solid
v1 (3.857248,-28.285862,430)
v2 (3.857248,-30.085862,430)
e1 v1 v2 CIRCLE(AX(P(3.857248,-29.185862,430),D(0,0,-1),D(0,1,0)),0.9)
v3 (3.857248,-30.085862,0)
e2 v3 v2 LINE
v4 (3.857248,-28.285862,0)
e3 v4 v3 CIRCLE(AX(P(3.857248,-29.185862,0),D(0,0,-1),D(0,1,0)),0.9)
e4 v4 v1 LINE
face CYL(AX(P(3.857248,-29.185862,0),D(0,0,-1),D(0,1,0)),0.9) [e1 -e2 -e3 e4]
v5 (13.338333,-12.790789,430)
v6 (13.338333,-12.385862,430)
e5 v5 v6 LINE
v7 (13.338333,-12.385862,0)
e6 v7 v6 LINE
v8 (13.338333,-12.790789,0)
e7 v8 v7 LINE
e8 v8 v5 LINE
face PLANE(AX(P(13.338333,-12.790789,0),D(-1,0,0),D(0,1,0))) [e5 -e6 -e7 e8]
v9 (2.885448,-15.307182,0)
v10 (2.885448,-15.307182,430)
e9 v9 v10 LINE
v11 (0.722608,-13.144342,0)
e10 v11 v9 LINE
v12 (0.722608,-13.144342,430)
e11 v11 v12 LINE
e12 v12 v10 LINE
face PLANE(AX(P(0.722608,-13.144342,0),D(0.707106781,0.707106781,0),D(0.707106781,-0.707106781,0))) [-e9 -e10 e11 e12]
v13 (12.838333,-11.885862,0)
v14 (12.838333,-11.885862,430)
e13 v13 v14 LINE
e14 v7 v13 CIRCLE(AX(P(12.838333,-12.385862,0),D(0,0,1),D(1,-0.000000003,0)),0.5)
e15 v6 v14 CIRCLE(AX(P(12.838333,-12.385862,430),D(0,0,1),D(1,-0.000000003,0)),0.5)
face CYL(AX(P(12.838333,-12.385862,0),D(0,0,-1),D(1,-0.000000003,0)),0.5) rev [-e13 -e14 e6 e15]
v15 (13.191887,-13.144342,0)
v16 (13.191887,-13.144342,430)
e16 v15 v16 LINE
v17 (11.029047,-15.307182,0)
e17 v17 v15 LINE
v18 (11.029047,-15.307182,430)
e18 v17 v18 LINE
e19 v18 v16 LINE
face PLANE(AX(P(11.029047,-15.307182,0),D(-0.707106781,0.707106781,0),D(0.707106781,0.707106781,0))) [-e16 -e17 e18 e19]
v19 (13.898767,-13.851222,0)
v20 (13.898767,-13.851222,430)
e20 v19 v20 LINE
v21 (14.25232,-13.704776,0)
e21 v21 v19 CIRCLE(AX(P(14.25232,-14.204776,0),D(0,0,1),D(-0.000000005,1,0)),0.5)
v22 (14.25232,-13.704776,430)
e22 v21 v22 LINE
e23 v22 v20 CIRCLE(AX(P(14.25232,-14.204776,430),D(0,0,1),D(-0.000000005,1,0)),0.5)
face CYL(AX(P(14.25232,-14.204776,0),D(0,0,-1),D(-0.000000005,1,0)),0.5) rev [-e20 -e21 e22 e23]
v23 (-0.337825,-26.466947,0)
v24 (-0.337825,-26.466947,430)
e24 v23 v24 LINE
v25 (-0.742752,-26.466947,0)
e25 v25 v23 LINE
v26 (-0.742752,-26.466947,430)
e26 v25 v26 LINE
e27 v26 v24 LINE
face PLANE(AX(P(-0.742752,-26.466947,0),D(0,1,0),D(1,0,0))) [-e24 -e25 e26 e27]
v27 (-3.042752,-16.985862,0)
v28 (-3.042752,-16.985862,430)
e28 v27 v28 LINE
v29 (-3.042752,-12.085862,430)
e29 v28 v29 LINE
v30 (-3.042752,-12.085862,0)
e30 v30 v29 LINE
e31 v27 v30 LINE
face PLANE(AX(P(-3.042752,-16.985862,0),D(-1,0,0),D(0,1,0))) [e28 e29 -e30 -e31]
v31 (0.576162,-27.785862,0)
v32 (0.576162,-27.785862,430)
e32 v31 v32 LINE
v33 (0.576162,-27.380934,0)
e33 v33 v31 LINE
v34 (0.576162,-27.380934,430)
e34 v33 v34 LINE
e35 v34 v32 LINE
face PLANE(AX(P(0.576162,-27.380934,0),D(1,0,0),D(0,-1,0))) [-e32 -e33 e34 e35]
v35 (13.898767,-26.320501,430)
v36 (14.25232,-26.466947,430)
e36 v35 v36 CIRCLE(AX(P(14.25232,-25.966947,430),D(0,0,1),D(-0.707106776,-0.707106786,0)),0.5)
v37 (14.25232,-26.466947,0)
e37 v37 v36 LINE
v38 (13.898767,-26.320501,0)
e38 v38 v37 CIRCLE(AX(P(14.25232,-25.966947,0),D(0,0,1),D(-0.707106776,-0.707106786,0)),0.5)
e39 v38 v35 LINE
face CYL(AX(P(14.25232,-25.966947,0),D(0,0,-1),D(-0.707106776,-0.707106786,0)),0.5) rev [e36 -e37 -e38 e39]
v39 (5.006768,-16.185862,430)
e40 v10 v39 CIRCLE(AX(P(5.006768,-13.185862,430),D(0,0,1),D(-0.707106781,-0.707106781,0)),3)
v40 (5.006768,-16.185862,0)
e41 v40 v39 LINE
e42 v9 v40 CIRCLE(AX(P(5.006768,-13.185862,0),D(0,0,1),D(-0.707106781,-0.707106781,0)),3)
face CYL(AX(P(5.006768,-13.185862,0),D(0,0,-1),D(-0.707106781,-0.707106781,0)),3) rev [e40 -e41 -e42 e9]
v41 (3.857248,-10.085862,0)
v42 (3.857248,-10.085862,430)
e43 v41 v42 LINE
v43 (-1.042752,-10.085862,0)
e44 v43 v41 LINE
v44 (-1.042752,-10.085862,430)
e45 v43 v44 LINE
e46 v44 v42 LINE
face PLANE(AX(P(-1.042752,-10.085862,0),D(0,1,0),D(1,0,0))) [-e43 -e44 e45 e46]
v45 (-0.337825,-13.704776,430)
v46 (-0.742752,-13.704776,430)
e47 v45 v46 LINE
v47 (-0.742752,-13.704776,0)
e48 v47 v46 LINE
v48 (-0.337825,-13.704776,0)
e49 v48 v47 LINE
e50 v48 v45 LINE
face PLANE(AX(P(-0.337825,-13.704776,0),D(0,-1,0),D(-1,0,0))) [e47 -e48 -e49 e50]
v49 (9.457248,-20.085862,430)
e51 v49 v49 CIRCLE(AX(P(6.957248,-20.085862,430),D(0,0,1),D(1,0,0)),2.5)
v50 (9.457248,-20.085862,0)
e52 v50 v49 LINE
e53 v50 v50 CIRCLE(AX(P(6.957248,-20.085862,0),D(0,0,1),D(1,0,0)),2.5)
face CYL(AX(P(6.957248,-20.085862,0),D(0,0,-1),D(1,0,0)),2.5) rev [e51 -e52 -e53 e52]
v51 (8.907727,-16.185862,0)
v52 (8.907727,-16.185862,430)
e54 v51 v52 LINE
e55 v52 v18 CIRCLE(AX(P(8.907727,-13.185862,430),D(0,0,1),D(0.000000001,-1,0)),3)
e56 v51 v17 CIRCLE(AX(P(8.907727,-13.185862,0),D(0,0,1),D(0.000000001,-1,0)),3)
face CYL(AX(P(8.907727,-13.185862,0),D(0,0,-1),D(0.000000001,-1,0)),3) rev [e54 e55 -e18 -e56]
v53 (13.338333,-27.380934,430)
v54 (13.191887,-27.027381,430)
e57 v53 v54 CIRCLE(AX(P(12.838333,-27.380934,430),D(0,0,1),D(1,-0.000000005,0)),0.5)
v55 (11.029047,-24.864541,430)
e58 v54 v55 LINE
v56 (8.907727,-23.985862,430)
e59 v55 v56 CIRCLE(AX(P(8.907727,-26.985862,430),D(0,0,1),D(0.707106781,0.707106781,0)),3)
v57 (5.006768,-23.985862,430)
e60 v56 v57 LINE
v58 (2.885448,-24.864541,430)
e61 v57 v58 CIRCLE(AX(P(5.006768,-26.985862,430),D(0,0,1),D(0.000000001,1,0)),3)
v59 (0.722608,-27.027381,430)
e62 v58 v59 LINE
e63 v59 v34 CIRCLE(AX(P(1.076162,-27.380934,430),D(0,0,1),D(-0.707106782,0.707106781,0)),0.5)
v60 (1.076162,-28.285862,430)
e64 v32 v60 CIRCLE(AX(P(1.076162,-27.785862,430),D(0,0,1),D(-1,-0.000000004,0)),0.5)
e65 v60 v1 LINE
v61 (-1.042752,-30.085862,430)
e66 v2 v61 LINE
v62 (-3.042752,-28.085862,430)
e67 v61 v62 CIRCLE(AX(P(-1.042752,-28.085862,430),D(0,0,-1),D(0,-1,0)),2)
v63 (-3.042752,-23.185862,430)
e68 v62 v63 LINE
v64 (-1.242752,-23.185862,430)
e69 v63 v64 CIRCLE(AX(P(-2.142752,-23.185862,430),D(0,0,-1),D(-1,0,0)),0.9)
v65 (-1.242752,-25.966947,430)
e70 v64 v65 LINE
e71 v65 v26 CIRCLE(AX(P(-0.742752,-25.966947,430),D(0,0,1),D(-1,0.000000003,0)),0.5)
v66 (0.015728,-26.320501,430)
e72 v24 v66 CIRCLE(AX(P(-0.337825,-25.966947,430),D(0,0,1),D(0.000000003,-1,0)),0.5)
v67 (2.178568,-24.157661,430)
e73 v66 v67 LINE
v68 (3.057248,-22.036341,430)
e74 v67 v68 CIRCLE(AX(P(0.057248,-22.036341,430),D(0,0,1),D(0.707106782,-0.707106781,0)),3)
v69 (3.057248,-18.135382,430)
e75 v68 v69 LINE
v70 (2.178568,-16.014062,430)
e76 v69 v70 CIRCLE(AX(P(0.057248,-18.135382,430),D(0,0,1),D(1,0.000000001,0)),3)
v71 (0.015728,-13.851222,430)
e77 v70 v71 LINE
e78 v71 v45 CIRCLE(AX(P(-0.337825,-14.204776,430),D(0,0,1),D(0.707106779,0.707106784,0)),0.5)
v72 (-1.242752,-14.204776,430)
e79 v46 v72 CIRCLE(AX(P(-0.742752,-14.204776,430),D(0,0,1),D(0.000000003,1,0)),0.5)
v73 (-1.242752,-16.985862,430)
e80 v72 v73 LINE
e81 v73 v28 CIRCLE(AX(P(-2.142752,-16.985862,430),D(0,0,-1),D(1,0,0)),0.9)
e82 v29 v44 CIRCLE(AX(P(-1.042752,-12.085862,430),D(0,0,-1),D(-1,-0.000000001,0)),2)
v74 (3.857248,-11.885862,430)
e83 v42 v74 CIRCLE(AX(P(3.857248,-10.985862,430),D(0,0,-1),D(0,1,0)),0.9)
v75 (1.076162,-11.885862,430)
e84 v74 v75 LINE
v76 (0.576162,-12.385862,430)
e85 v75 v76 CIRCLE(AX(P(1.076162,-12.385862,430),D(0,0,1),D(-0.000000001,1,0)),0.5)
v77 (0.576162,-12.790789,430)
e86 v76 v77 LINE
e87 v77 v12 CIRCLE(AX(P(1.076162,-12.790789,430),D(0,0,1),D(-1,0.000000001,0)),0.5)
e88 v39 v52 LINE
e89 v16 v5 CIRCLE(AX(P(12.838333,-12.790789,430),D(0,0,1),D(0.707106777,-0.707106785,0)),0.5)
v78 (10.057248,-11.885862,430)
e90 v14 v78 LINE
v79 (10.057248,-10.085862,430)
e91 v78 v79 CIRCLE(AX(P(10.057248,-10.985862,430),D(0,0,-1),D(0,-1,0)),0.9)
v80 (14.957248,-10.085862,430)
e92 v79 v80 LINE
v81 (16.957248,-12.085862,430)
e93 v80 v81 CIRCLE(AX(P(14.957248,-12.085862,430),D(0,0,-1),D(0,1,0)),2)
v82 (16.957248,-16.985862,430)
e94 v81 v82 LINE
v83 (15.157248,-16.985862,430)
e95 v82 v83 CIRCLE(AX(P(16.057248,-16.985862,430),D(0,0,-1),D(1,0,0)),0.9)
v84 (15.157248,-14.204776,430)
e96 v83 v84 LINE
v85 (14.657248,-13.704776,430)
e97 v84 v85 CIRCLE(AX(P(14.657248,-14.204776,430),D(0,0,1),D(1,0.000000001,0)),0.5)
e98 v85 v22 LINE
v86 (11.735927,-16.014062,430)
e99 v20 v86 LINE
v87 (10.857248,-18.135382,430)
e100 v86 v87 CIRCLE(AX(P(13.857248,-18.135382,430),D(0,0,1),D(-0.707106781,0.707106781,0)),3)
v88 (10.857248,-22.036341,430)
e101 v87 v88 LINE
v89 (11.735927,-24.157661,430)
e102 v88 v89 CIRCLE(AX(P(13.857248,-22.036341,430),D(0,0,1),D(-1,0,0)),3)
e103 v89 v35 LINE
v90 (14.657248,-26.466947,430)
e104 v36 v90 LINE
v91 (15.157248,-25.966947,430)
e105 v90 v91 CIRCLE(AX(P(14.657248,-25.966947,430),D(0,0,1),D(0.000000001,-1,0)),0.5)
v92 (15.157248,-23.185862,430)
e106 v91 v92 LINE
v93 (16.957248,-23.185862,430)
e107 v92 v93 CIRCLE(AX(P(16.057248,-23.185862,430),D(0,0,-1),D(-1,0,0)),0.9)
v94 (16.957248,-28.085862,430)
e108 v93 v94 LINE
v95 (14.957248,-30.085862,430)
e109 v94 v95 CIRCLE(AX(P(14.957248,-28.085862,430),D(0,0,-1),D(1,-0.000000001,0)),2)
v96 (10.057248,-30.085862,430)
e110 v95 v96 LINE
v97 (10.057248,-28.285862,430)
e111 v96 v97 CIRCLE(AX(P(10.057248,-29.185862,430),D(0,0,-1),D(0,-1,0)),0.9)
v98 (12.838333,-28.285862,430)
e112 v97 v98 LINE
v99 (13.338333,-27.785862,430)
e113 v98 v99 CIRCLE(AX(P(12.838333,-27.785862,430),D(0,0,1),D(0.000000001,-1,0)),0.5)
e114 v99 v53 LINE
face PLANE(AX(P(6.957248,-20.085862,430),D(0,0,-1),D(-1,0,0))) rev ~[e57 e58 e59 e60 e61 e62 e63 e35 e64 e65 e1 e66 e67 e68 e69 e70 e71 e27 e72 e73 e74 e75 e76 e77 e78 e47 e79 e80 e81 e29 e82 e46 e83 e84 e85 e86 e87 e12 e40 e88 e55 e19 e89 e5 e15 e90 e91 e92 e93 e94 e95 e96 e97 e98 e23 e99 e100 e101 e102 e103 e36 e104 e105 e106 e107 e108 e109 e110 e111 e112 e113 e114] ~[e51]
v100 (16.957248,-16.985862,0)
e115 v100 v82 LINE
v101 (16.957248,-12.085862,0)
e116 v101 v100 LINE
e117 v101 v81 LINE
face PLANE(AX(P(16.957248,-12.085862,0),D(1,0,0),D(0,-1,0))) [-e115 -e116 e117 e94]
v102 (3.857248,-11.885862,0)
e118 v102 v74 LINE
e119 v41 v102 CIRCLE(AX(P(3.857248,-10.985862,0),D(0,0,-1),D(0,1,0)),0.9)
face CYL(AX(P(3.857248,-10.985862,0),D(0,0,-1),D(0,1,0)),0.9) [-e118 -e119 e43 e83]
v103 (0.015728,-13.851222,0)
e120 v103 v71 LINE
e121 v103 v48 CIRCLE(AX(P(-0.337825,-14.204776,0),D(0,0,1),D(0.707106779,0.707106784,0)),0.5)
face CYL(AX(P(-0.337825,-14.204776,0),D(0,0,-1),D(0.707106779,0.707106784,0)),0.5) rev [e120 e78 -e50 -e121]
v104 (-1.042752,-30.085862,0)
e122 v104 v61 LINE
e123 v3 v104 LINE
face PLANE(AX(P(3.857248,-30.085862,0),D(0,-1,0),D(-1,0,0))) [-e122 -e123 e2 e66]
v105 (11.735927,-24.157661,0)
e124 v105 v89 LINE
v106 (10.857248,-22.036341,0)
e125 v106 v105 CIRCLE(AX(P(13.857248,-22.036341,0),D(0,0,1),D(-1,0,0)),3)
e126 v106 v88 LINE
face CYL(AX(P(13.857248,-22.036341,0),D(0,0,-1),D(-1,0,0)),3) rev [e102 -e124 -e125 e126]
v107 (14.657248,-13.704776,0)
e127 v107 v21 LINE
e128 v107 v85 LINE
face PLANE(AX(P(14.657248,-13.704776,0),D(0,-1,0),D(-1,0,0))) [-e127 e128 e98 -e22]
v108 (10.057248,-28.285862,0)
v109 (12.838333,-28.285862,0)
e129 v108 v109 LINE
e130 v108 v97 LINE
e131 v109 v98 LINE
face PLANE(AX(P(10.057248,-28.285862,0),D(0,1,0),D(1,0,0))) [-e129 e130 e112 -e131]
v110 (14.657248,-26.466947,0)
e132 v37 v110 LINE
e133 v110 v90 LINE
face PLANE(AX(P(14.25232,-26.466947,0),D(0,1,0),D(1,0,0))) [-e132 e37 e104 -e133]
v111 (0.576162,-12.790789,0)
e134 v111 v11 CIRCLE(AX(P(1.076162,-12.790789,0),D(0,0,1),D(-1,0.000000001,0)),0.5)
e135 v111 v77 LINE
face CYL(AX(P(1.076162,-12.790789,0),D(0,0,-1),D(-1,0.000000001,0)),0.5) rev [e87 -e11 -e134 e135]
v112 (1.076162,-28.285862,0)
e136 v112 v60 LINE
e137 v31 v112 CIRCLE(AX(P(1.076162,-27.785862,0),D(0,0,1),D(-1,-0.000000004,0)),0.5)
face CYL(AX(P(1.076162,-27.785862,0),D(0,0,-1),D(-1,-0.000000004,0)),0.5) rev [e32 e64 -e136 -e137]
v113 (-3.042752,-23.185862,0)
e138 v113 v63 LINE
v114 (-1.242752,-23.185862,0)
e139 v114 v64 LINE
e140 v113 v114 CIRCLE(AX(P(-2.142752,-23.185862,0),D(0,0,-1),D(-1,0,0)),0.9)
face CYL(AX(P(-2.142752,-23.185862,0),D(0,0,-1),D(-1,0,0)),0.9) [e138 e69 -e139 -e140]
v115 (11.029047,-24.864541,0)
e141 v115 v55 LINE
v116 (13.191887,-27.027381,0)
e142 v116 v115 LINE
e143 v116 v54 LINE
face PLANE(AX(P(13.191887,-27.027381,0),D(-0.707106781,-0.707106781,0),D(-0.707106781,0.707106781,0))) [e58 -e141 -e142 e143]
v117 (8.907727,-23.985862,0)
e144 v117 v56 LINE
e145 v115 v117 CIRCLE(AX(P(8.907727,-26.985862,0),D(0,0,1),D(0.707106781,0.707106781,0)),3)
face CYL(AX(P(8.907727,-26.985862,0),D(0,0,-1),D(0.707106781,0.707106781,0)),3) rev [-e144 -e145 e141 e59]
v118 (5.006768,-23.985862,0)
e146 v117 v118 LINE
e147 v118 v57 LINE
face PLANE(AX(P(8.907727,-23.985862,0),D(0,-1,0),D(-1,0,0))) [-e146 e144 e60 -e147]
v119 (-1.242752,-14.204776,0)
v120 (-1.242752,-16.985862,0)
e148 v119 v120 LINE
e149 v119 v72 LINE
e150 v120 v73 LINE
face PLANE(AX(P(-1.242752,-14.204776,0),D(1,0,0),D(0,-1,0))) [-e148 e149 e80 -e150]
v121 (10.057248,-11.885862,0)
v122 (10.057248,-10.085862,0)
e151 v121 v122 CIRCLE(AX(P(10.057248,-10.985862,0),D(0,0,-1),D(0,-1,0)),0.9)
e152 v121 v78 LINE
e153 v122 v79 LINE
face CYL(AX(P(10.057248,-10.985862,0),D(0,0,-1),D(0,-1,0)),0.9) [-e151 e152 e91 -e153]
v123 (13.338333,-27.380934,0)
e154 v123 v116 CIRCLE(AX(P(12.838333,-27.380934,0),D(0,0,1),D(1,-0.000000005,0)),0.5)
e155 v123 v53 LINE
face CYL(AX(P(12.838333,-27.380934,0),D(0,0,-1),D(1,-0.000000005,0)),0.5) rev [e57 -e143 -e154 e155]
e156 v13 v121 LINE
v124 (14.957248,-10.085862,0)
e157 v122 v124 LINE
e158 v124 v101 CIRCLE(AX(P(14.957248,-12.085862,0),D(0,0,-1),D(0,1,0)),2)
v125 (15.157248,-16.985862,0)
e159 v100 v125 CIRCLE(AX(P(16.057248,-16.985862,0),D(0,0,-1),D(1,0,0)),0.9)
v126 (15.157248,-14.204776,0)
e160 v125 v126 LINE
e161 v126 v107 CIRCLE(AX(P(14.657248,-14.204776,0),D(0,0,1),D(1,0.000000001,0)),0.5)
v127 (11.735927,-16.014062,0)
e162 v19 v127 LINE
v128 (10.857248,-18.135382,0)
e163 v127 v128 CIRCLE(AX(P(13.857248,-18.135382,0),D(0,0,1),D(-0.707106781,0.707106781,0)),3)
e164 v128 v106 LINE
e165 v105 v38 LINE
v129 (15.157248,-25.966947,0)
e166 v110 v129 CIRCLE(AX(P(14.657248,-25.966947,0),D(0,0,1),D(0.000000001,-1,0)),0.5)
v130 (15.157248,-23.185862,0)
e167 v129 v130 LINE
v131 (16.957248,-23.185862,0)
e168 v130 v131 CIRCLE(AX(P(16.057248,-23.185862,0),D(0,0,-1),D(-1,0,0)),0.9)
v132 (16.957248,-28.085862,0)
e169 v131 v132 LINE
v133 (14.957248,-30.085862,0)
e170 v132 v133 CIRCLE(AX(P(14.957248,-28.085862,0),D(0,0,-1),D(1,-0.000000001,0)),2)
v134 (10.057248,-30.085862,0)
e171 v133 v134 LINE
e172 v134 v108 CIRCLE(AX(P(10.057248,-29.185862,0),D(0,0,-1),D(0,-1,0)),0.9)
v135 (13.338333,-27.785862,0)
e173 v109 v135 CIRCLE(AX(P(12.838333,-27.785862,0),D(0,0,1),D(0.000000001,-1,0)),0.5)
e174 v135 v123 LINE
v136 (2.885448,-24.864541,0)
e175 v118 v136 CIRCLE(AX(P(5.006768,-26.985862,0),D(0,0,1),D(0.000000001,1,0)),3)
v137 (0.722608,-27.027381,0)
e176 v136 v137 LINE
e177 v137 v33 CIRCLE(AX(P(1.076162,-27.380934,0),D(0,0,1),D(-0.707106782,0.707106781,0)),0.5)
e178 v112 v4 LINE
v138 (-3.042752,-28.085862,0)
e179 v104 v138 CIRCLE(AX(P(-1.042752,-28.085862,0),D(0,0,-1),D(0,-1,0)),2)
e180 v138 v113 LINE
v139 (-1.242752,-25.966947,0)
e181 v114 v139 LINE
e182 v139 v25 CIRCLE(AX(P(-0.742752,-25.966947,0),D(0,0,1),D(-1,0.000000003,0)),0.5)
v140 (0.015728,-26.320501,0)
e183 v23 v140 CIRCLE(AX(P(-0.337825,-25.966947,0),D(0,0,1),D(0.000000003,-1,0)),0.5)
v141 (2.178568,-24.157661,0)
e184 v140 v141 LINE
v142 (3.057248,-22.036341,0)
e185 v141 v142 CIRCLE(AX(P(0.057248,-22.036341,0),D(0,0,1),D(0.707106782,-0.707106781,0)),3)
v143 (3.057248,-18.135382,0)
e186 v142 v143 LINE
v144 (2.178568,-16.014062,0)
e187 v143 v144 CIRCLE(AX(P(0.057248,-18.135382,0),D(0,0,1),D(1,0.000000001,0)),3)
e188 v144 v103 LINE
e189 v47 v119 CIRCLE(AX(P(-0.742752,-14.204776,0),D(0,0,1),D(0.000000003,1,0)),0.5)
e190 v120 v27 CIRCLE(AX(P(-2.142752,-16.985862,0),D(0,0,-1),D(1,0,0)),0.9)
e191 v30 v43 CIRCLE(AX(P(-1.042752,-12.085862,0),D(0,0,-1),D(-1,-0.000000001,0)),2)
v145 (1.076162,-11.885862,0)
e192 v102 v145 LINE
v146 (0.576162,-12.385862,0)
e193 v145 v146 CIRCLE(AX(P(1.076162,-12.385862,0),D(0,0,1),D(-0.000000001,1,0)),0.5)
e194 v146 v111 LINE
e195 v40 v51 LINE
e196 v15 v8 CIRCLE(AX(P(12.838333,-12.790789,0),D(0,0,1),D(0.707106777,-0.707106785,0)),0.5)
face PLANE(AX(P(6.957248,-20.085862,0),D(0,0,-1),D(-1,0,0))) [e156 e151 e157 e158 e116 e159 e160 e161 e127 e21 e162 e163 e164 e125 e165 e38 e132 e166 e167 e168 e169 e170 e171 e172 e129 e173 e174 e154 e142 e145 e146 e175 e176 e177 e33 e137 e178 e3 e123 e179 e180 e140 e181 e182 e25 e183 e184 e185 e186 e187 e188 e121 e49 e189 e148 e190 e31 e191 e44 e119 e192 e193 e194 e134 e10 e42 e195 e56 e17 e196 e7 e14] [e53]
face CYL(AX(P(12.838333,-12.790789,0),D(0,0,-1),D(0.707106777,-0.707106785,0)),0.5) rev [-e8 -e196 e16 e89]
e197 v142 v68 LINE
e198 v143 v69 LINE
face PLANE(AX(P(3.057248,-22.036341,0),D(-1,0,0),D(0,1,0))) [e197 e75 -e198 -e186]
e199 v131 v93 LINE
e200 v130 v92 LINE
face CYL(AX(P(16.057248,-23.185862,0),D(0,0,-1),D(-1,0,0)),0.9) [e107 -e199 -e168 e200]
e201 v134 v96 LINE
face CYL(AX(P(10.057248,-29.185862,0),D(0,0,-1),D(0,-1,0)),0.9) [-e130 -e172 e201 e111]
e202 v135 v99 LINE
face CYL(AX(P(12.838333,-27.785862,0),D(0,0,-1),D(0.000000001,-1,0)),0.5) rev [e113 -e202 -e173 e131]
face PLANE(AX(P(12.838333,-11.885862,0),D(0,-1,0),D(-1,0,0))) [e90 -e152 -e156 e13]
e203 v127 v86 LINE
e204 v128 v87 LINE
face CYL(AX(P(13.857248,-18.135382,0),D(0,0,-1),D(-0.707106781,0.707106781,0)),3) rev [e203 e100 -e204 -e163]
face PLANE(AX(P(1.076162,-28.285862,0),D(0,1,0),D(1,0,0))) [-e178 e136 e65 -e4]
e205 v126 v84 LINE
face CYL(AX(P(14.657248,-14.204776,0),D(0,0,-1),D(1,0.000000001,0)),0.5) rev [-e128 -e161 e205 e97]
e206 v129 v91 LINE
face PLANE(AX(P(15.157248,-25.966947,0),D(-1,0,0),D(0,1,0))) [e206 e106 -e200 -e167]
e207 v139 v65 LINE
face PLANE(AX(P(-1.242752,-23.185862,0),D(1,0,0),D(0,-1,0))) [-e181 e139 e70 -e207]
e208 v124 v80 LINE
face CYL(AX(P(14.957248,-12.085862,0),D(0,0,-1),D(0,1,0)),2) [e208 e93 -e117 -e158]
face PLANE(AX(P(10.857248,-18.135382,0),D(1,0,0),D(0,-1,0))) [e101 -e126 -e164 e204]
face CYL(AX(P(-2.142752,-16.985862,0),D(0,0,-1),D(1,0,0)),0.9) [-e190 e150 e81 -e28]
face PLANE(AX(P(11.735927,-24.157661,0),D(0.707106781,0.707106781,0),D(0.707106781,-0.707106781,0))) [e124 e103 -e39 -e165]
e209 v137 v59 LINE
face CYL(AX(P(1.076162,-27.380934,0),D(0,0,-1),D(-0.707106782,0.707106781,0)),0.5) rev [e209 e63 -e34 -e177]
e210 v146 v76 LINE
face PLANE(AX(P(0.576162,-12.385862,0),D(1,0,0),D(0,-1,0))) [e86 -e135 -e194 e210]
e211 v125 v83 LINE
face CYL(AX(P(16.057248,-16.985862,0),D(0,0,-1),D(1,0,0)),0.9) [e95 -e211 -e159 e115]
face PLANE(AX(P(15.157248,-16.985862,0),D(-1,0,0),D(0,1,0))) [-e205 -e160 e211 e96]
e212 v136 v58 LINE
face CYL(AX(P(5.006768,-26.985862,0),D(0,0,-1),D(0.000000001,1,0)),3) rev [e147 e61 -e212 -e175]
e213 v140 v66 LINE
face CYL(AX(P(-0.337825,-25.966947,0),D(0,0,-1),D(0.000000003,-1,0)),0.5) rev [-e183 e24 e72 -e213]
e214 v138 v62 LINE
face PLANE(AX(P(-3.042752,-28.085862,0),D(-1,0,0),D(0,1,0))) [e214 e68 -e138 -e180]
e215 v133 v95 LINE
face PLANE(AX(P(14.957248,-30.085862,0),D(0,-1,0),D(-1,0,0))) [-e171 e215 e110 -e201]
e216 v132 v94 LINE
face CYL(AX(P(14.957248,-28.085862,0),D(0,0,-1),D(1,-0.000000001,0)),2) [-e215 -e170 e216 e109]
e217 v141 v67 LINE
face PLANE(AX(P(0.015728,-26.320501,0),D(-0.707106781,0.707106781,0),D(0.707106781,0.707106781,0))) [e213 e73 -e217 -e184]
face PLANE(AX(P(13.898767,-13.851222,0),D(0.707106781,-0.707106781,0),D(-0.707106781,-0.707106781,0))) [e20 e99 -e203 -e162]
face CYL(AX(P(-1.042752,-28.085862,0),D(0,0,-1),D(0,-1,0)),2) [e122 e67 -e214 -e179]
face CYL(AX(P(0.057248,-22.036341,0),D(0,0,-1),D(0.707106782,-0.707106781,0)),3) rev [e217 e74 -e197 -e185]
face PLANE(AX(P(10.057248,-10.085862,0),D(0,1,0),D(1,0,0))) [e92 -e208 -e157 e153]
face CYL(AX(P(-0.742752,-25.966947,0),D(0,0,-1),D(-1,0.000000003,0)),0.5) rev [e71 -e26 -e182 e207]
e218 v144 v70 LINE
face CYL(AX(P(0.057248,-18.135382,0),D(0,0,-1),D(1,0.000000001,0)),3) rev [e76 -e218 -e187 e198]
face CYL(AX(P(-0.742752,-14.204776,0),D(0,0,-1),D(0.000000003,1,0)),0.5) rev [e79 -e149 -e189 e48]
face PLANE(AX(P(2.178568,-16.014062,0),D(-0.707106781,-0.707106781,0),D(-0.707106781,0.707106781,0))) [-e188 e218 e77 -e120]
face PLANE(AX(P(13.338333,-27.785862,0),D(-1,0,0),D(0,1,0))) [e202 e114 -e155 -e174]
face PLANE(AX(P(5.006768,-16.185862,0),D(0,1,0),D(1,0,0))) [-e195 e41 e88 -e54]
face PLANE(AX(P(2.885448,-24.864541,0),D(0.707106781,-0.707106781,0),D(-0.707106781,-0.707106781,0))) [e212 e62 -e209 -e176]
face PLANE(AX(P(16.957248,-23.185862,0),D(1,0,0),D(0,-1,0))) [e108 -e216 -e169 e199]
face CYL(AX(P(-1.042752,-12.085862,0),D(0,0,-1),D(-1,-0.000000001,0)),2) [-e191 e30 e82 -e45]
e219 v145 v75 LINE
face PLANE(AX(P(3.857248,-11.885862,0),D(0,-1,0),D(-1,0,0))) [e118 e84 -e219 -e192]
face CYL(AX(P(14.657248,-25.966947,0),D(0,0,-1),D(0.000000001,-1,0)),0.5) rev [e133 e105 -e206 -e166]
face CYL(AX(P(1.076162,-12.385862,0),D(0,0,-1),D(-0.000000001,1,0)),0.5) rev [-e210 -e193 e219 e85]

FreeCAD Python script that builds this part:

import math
import FreeCAD as App
import Part
import Sketcher

doc = App.newDocument("Part")
body = doc.addObject("PartDesign::Body", "Body")

sketch1 = doc.addObject("Sketcher::SketchObject", "Sketch")
body.addObject(sketch1)
sketch1.AttachmentSupport = (doc.XY_Plane, [""])
sketch1.MapMode = "FlatFace"
sketch1.addGeometry(Part.LineSegment(App.Vector(3.86, -10.09, 0), App.Vector(-1.04, -10.09, 0)), False)
sketch1.addGeometry(Part.ArcOfCircle(Part.Circle(App.Vector(-1.04, -12.09, 0), App.Vector(0, 0, 1), 2), math.radians(90), math.radians(180)), False)
sketch1.addGeometry(Part.LineSegment(App.Vector(-3.04, -12.09, 0), App.Vector(-3.04, -16.99, 0)), False)
sketch1.addGeometry(Part.ArcOfCircle(Part.Circle(App.Vector(-2.14, -16.99, 0), App.Vector(0, 0, 1), 0.9), math.radians(180), math.radians(360)), False)
sketch1.addGeometry(Part.LineSegment(App.Vector(-1.24, -16.99, 0), App.Vector(-1.24, -14.2, 0)), False)
sketch1.addGeometry(Part.ArcOfCircle(Part.Circle(App.Vector(-0.74, -14.2, 0), App.Vector(0, 0, 1), 0.5), math.radians(90), math.radians(180)), False)
sketch1.addGeometry(Part.LineSegment(App.Vector(-0.74, -13.7, 0), App.Vector(-0.34, -13.7, 0)), False)
sketch1.addGeometry(Part.ArcOfCircle(Part.Circle(App.Vector(-0.34, -14.2, 0), App.Vector(0, 0, 1), 0.5), math.radians(45), math.radians(90)), False)
sketch1.addGeometry(Part.LineSegment(App.Vector(0.02, -13.85, 0), App.Vector(2.18, -16.01, 0)), False)
sketch1.addGeometry(Part.ArcOfCircle(Part.Circle(App.Vector(0.06, -18.14, 0), App.Vector(0, 0, 1), 3), math.radians(0), math.radians(45)), False)
sketch1.addGeometry(Part.LineSegment(App.Vector(3.06, -18.14, 0), App.Vector(3.06, -22.04, 0)), False)
sketch1.addGeometry(Part.ArcOfCircle(Part.Circle(App.Vector(0.06, -22.04, 0), App.Vector(0, 0, 1), 3), math.radians(-45), math.radians(0)), False)
sketch1.addGeometry(Part.LineSegment(App.Vector(2.18, -24.16, 0), App.Vector(0.02, -26.32, 0)), False)
sketch1.addGeometry(Part.ArcOfCircle(Part.Circle(App.Vector(-0.34, -25.97, 0), App.Vector(0, 0, 1), 0.5), math.radians(-90), math.radians(-45)), False)
sketch1.addGeometry(Part.LineSegment(App.Vector(-0.34, -26.47, 0), App.Vector(-0.74, -26.47, 0)), False)
sketch1.addGeometry(Part.ArcOfCircle(Part.Circle(App.Vector(-0.74, -25.97, 0), App.Vector(0, 0, 1), 0.5), math.radians(180), math.radians(270)), False)
sketch1.addGeometry(Part.LineSegment(App.Vector(-1.24, -25.97, 0), App.Vector(-1.24, -23.19, 0)), False)
sketch1.addGeometry(Part.ArcOfCircle(Part.Circle(App.Vector(-2.14, -23.19, 0), App.Vector(0, 0, 1), 0.9), math.radians(0), math.radians(180)), False)
sketch1.addGeometry(Part.LineSegment(App.Vector(-3.04, -23.19, 0), App.Vector(-3.04, -28.09, 0)), False)
sketch1.addGeometry(Part.ArcOfCircle(Part.Circle(App.Vector(-1.04, -28.09, 0), App.Vector(0, 0, 1), 2), math.radians(180), math.radians(270)), False)
sketch1.addGeometry(Part.LineSegment(App.Vector(-1.04, -30.09, 0), App.Vector(3.86, -30.09, 0)), False)
sketch1.addGeometry(Part.ArcOfCircle(Part.Circle(App.Vector(3.86, -29.19, 0), App.Vector(0, 0, 1), 0.9), math.radians(-90), math.radians(90)), False)
sketch1.addGeometry(Part.LineSegment(App.Vector(3.86, -28.29, 0), App.Vector(1.08, -28.29, 0)), False)
sketch1.addGeometry(Part.ArcOfCircle(Part.Circle(App.Vector(1.08, -27.79, 0), App.Vector(0, 0, 1), 0.5), math.radians(-180), math.radians(-90)), False)
sketch1.addGeometry(Part.LineSegment(App.Vector(0.58, -27.79, 0), App.Vector(0.58, -27.38, 0)), False)
sketch1.addGeometry(Part.ArcOfCircle(Part.Circle(App.Vector(1.08, -27.38, 0), App.Vector(0, 0, 1), 0.5), math.radians(135), math.radians(180)), False)
sketch1.addGeometry(Part.LineSegment(App.Vector(0.72, -27.03, 0), App.Vector(2.89, -24.86, 0)), False)
sketch1.addGeometry(Part.ArcOfCircle(Part.Circle(App.Vector(5.01, -26.99, 0), App.Vector(0, 0, 1), 3), math.radians(90), math.radians(135)), False)
sketch1.addGeometry(Part.LineSegment(App.Vector(5.01, -23.99, 0), App.Vector(8.91, -23.99, 0)), False)
sketch1.addGeometry(Part.ArcOfCircle(Part.Circle(App.Vector(8.91, -26.99, 0), App.Vector(0, 0, 1), 3), math.radians(45), math.radians(90)), False)
sketch1.addGeometry(Part.LineSegment(App.Vector(11.03, -24.86, 0), App.Vector(13.19, -27.03, 0)), False)
sketch1.addGeometry(Part.ArcOfCircle(Part.Circle(App.Vector(12.84, -27.38, 0), App.Vector(0, 0, 1), 0.5), math.radians(0), math.radians(45)), False)
sketch1.addGeometry(Part.LineSegment(App.Vector(13.34, -27.38, 0), App.Vector(13.34, -27.79, 0)), False)
sketch1.addGeometry(Part.ArcOfCircle(Part.Circle(App.Vector(12.84, -27.79, 0), App.Vector(0, 0, 1), 0.5), math.radians(-90), math.radians(0)), False)
sketch1.addGeometry(Part.LineSegment(App.Vector(12.84, -28.29, 0), App.Vector(10.06, -28.29, 0)), False)
sketch1.addGeometry(Part.ArcOfCircle(Part.Circle(App.Vector(10.06, -29.19, 0), App.Vector(0, 0, 1), 0.9), math.radians(90), math.radians(270)), False)
sketch1.addGeometry(Part.LineSegment(App.Vector(10.06, -30.09, 0), App.Vector(14.96, -30.09, 0)), False)
sketch1.addGeometry(Part.ArcOfCircle(Part.Circle(App.Vector(14.96, -28.09, 0), App.Vector(0, 0, 1), 2), math.radians(-90), math.radians(0)), False)
sketch1.addGeometry(Part.LineSegment(App.Vector(16.96, -28.09, 0), App.Vector(16.96, -23.19, 0)), False)
sketch1.addGeometry(Part.ArcOfCircle(Part.Circle(App.Vector(16.06, -23.19, 0), App.Vector(0, 0, 1), 0.9), math.radians(0), math.radians(180)), False)
sketch1.addGeometry(Part.LineSegment(App.Vector(15.16, -23.19, 0), App.Vector(15.16, -25.97, 0)), False)
sketch1.addGeometry(Part.ArcOfCircle(Part.Circle(App.Vector(14.66, -25.97, 0), App.Vector(0, 0, 1), 0.5), math.radians(-90), math.radians(0)), False)
sketch1.addGeometry(Part.LineSegment(App.Vector(14.66, -26.47, 0), App.Vector(14.25, -26.47, 0)), False)
sketch1.addGeometry(Part.ArcOfCircle(Part.Circle(App.Vector(14.25, -25.97, 0), App.Vector(0, 0, 1), 0.5), math.radians(-135), math.radians(-90)), False)
sketch1.addGeometry(Part.LineSegment(App.Vector(13.9, -26.32, 0), App.Vector(11.74, -24.16, 0)), False)
sketch1.addGeometry(Part.ArcOfCircle(Part.Circle(App.Vector(13.86, -22.04, 0), App.Vector(0, 0, 1), 3), math.radians(180), math.radians(225)), False)
sketch1.addGeometry(Part.LineSegment(App.Vector(10.86, -22.04, 0), App.Vector(10.86, -18.14, 0)), False)
sketch1.addGeometry(Part.ArcOfCircle(Part.Circle(App.Vector(13.86, -18.14, 0), App.Vector(0, 0, 1), 3), math.radians(135), math.radians(180)), False)
sketch1.addGeometry(Part.LineSegment(App.Vector(11.74, -16.01, 0), App.Vector(13.9, -13.85, 0)), False)
sketch1.addGeometry(Part.ArcOfCircle(Part.Circle(App.Vector(14.25, -14.2, 0), App.Vector(0, 0, 1), 0.5), math.radians(90), math.radians(135)), False)
sketch1.addGeometry(Part.LineSegment(App.Vector(14.25, -13.7, 0), App.Vector(14.66, -13.7, 0)), False)
sketch1.addGeometry(Part.ArcOfCircle(Part.Circle(App.Vector(14.66, -14.2, 0), App.Vector(0, 0, 1), 0.5), math.radians(0), math.radians(90)), False)
sketch1.addGeometry(Part.LineSegment(App.Vector(15.16, -14.2, 0), App.Vector(15.16, -16.99, 0)), False)
sketch1.addGeometry(Part.ArcOfCircle(Part.Circle(App.Vector(16.06, -16.99, 0), App.Vector(0, 0, 1), 0.9), math.radians(180), math.radians(360)), False)
sketch1.addGeometry(Part.LineSegment(App.Vector(16.96, -16.99, 0), App.Vector(16.96, -12.09, 0)), False)
sketch1.addGeometry(Part.ArcOfCircle(Part.Circle(App.Vector(14.96, -12.09, 0), App.Vector(0, 0, 1), 2), math.radians(0), math.radians(90)), False)
sketch1.addGeometry(Part.LineSegment(App.Vector(14.96, -10.09, 0), App.Vector(10.06, -10.09, 0)), False)
sketch1.addGeometry(Part.ArcOfCircle(Part.Circle(App.Vector(10.06, -10.99, 0), App.Vector(0, 0, 1), 0.9), math.radians(90), math.radians(270)), False)
sketch1.addGeometry(Part.LineSegment(App.Vector(10.06, -11.89, 0), App.Vector(12.84, -11.89, 0)), False)
sketch1.addGeometry(Part.ArcOfCircle(Part.Circle(App.Vector(12.84, -12.39, 0), App.Vector(0, 0, 1), 0.5), math.radians(0), math.radians(90)), False)
sketch1.addGeometry(Part.LineSegment(App.Vector(13.34, -12.39, 0), App.Vector(13.34, -12.79, 0)), False)
sketch1.addGeometry(Part.ArcOfCircle(Part.Circle(App.Vector(12.84, -12.79, 0), App.Vector(0, 0, 1), 0.5), math.radians(-45), math.radians(0)), False)
sketch1.addGeometry(Part.LineSegment(App.Vector(13.19, -13.14, 0), App.Vector(11.03, -15.31, 0)), False)
sketch1.addGeometry(Part.ArcOfCircle(Part.Circle(App.Vector(8.91, -13.19, 0), App.Vector(0, 0, 1), 3), math.radians(-90), math.radians(-45)), False)
sketch1.addGeometry(Part.LineSegment(App.Vector(8.91, -16.19, 0), App.Vector(5.01, -16.19, 0)), False)
sketch1.addGeometry(Part.ArcOfCircle(Part.Circle(App.Vector(5.01, -13.19, 0), App.Vector(0, 0, 1), 3), math.radians(-135), math.radians(-90)), False)
sketch1.addGeometry(Part.LineSegment(App.Vector(2.89, -15.31, 0), App.Vector(0.72, -13.14, 0)), False)
sketch1.addGeometry(Part.ArcOfCircle(Part.Circle(App.Vector(1.08, -12.79, 0), App.Vector(0, 0, 1), 0.5), math.radians(180), math.radians(225)), False)
sketch1.addGeometry(Part.LineSegment(App.Vector(0.58, -12.79, 0), App.Vector(0.58, -12.39, 0)), False)
sketch1.addGeometry(Part.ArcOfCircle(Part.Circle(App.Vector(1.08, -12.39, 0), App.Vector(0, 0, 1), 0.5), math.radians(90), math.radians(180)), False)
sketch1.addGeometry(Part.LineSegment(App.Vector(1.08, -11.89, 0), App.Vector(3.86, -11.89, 0)), False)
sketch1.addGeometry(Part.ArcOfCircle(Part.Circle(App.Vector(3.86, -10.99, 0), App.Vector(0, 0, 1), 0.9), math.radians(-90), math.radians(90)), False)
sketch1.addGeometry(Part.Circle(App.Vector(6.96, -20.09, 0), App.Vector(0, 0, 1), 2.5), False)
sketch1.addConstraint(Sketcher.Constraint("Tangent", 0, 2, 1, 1))
sketch1.addConstraint(Sketcher.Constraint("Tangent", 1, 2, 2, 1))
sketch1.addConstraint(Sketcher.Constraint("Tangent", 2, 2, 3, 1))
sketch1.addConstraint(Sketcher.Constraint("Tangent", 3, 2, 4, 1))
sketch1.addConstraint(Sketcher.Constraint("Tangent", 4, 2, 5, 2))
sketch1.addConstraint(Sketcher.Constraint("Tangent", 5, 1, 6, 1))
sketch1.addConstraint(Sketcher.Constraint("Tangent", 6, 2, 7, 2))
sketch1.addConstraint(Sketcher.Constraint("Tangent", 7, 1, 8, 1))
sketch1.addConstraint(Sketcher.Constraint("Tangent", 8, 2, 9, 2))
sketch1.addConstraint(Sketcher.Constraint("Tangent", 9, 1, 10, 1))
sketch1.addConstraint(Sketcher.Constraint("Tangent", 10, 2, 11, 2))
sketch1.addConstraint(Sketcher.Constraint("Tangent", 11, 1, 12, 1))
sketch1.addConstraint(Sketcher.Constraint("Tangent", 12, 2, 13, 2))
sketch1.addConstraint(Sketcher.Constraint("Tangent", 13, 1, 14, 1))
sketch1.addConstraint(Sketcher.Constraint("Tangent", 14, 2, 15, 2))
sketch1.addConstraint(Sketcher.Constraint("Tangent", 15, 1, 16, 1))
sketch1.addConstraint(Sketcher.Constraint("Tangent", 16, 2, 17, 1))
sketch1.addConstraint(Sketcher.Constraint("Tangent", 17, 2, 18, 1))
sketch1.addConstraint(Sketcher.Constraint("Tangent", 18, 2, 19, 1))
sketch1.addConstraint(Sketcher.Constraint("Tangent", 19, 2, 20, 1))
sketch1.addConstraint(Sketcher.Constraint("Tangent", 20, 2, 21, 1))
sketch1.addConstraint(Sketcher.Constraint("Tangent", 21, 2, 22, 1))
sketch1.addConstraint(Sketcher.Constraint("Tangent", 22, 2, 23, 2))
sketch1.addConstraint(Sketcher.Constraint("Tangent", 23, 1, 24, 1))
sketch1.addConstraint(Sketcher.Constraint("Tangent", 24, 2, 25, 2))
sketch1.addConstraint(Sketcher.Constraint("Tangent", 25, 1, 26, 1))
sketch1.addConstraint(Sketcher.Constraint("Tangent", 26, 2, 27, 2))
sketch1.addConstraint(Sketcher.Constraint("Tangent", 27, 1, 28, 1))
sketch1.addConstraint(Sketcher.Constraint("Tangent", 28, 2, 29, 2))
sketch1.addConstraint(Sketcher.Constraint("Tangent", 29, 1, 30, 1))
sketch1.addConstraint(Sketcher.Constraint("Tangent", 30, 2, 31, 2))
sketch1.addConstraint(Sketcher.Constraint("Tangent", 31, 1, 32, 1))
sketch1.addConstraint(Sketcher.Constraint("Tangent", 32, 2, 33, 2))
sketch1.addConstraint(Sketcher.Constraint("Tangent", 33, 1, 34, 1))
sketch1.addConstraint(Sketcher.Constraint("Tangent", 34, 2, 35, 1))
sketch1.addConstraint(Sketcher.Constraint("Tangent", 35, 2, 36, 1))
sketch1.addConstraint(Sketcher.Constraint("Tangent", 36, 2, 37, 1))
sketch1.addConstraint(Sketcher.Constraint("Tangent", 37, 2, 38, 1))
sketch1.addConstraint(Sketcher.Constraint("Tangent", 38, 2, 39, 1))
sketch1.addConstraint(Sketcher.Constraint("Tangent", 39, 2, 40, 1))
sketch1.addConstraint(Sketcher.Constraint("Tangent", 40, 2, 41, 2))
sketch1.addConstraint(Sketcher.Constraint("Tangent", 41, 1, 42, 1))
sketch1.addConstraint(Sketcher.Constraint("Tangent", 42, 2, 43, 2))
sketch1.addConstraint(Sketcher.Constraint("Tangent", 43, 1, 44, 1))
sketch1.addConstraint(Sketcher.Constraint("Tangent", 44, 2, 45, 2))
sketch1.addConstraint(Sketcher.Constraint("Tangent", 45, 1, 46, 1))
sketch1.addConstraint(Sketcher.Constraint("Tangent", 46, 2, 47, 2))
sketch1.addConstraint(Sketcher.Constraint("Tangent", 47, 1, 48, 1))
sketch1.addConstraint(Sketcher.Constraint("Tangent", 48, 2, 49, 2))
sketch1.addConstraint(Sketcher.Constraint("Tangent", 49, 1, 50, 1))
sketch1.addConstraint(Sketcher.Constraint("Tangent", 50, 2, 51, 2))
sketch1.addConstraint(Sketcher.Constraint("Tangent", 51, 1, 52, 1))
sketch1.addConstraint(Sketcher.Constraint("Tangent", 52, 2, 53, 1))
sketch1.addConstraint(Sketcher.Constraint("Tangent", 53, 2, 54, 1))
sketch1.addConstraint(Sketcher.Constraint("Tangent", 54, 2, 55, 1))
sketch1.addConstraint(Sketcher.Constraint("Tangent", 55, 2, 56, 1))
sketch1.addConstraint(Sketcher.Constraint("Tangent", 56, 2, 57, 1))
sketch1.addConstraint(Sketcher.Constraint("Tangent", 57, 2, 58, 1))
sketch1.addConstraint(Sketcher.Constraint("Tangent", 58, 2, 59, 2))
sketch1.addConstraint(Sketcher.Constraint("Tangent", 59, 1, 60, 1))
sketch1.addConstraint(Sketcher.Constraint("Tangent", 60, 2, 61, 2))
sketch1.addConstraint(Sketcher.Constraint("Tangent", 61, 1, 62, 1))
sketch1.addConstraint(Sketcher.Constraint("Tangent", 62, 2, 63, 2))
sketch1.addConstraint(Sketcher.Constraint("Tangent", 63, 1, 64, 1))
sketch1.addConstraint(Sketcher.Constraint("Tangent", 64, 2, 65, 2))
sketch1.addConstraint(Sketcher.Constraint("Tangent", 65, 1, 66, 1))
sketch1.addConstraint(Sketcher.Constraint("Tangent", 66, 2, 67, 2))
sketch1.addConstraint(Sketcher.Constraint("Tangent", 67, 1, 68, 1))
sketch1.addConstraint(Sketcher.Constraint("Tangent", 68, 2, 69, 2))
sketch1.addConstraint(Sketcher.Constraint("Tangent", 69, 1, 70, 1))
sketch1.addConstraint(Sketcher.Constraint("Tangent", 70, 2, 71, 1))
sketch1.addConstraint(Sketcher.Constraint("Tangent", 71, 2, 0, 1))
sketch1.addConstraint(Sketcher.Constraint("Horizontal", 0))
sketch1.addConstraint(Sketcher.Constraint("Vertical", 2))
sketch1.addConstraint(Sketcher.Constraint("Vertical", 4))
sketch1.addConstraint(Sketcher.Constraint("Horizontal", 6))
sketch1.addConstraint(Sketcher.Constraint("Vertical", 10))
sketch1.addConstraint(Sketcher.Constraint("Horizontal", 14))
sketch1.addConstraint(Sketcher.Constraint("Vertical", 16))
sketch1.addConstraint(Sketcher.Constraint("Vertical", 18))
sketch1.addConstraint(Sketcher.Constraint("Horizontal", 20))
sketch1.addConstraint(Sketcher.Constraint("Horizontal", 22))
sketch1.addConstraint(Sketcher.Constraint("Vertical", 24))
sketch1.addConstraint(Sketcher.Constraint("Horizontal", 28))
sketch1.addConstraint(Sketcher.Constraint("Vertical", 32))
sketch1.addConstraint(Sketcher.Constraint("Horizontal", 34))
sketch1.addConstraint(Sketcher.Constraint("Horizontal", 36))
sketch1.addConstraint(Sketcher.Constraint("Vertical", 38))
sketch1.addConstraint(Sketcher.Constraint("Vertical", 40))
sketch1.addConstraint(Sketcher.Constraint("Horizontal", 42))
sketch1.addConstraint(Sketcher.Constraint("Vertical", 46))
sketch1.addConstraint(Sketcher.Constraint("Horizontal", 50))
sketch1.addConstraint(Sketcher.Constraint("Vertical", 52))
sketch1.addConstraint(Sketcher.Constraint("Vertical", 54))
sketch1.addConstraint(Sketcher.Constraint("Horizontal", 56))
sketch1.addConstraint(Sketcher.Constraint("Horizontal", 58))
sketch1.addConstraint(Sketcher.Constraint("Vertical", 60))
sketch1.addConstraint(Sketcher.Constraint("Horizontal", 64))
sketch1.addConstraint(Sketcher.Constraint("Vertical", 68))
sketch1.addConstraint(Sketcher.Constraint("Horizontal", 70))
sketch1.addConstraint(Sketcher.Constraint("Equal", 5, 7))
sketch1.addConstraint(Sketcher.Constraint("Equal", 9, 11))
sketch1.addConstraint(Sketcher.Constraint("Equal", 7, 13))
sketch1.addConstraint(Sketcher.Constraint("Equal", 13, 15))
sketch1.addConstraint(Sketcher.Constraint("Equal", 3, 17))
sketch1.addConstraint(Sketcher.Constraint("Equal", 1, 19))
sketch1.addConstraint(Sketcher.Constraint("Equal", 17, 21))
sketch1.addConstraint(Sketcher.Constraint("Equal", 15, 23))
sketch1.addConstraint(Sketcher.Constraint("Equal", 23, 25))
sketch1.addConstraint(Sketcher.Constraint("Equal", 11, 27))
sketch1.addConstraint(Sketcher.Constraint("Equal", 27, 29))
sketch1.addConstraint(Sketcher.Constraint("Equal", 25, 31))
sketch1.addConstraint(Sketcher.Constraint("Equal", 31, 33))
sketch1.addConstraint(Sketcher.Constraint("Equal", 21, 35))
sketch1.addConstraint(Sketcher.Constraint("Equal", 19, 37))
sketch1.addConstraint(Sketcher.Constraint("Equal", 35, 39))
sketch1.addConstraint(Sketcher.Constraint("Equal", 33, 41))
sketch1.addConstraint(Sketcher.Constraint("Equal", 41, 43))
sketch1.addConstraint(Sketcher.Constraint("Equal", 29, 45))
sketch1.addConstraint(Sketcher.Constraint("Equal", 45, 47))
sketch1.addConstraint(Sketcher.Constraint("Equal", 43, 49))
sketch1.addConstraint(Sketcher.Constraint("Equal", 49, 51))
sketch1.addConstraint(Sketcher.Constraint("Equal", 39, 53))
sketch1.addConstraint(Sketcher.Constraint("Equal", 37, 55))
sketch1.addConstraint(Sketcher.Constraint("Equal", 53, 57))
sketch1.addConstraint(Sketcher.Constraint("Equal", 51, 59))
sketch1.addConstraint(Sketcher.Constraint("Equal", 59, 61))
sketch1.addConstraint(Sketcher.Constraint("Equal", 47, 63))
sketch1.addConstraint(Sketcher.Constraint("Equal", 63, 65))
sketch1.addConstraint(Sketcher.Constraint("Equal", 61, 67))
sketch1.addConstraint(Sketcher.Constraint("Equal", 67, 69))
sketch1.addConstraint(Sketcher.Constraint("Equal", 57, 71))
sketch1.addConstraint(Sketcher.Constraint("Perpendicular", 8, 12))
sketch1.addConstraint(Sketcher.Constraint("Parallel", 12, 26))
sketch1.addConstraint(Sketcher.Constraint("Perpendicular", 26, 30))
sketch1.addConstraint(Sketcher.Constraint("Parallel", 30, 44))
sketch1.addConstraint(Sketcher.Constraint("Perpendicular", 44, 48))
sketch1.addConstraint(Sketcher.Constraint("Parallel", 48, 62))
sketch1.addConstraint(Sketcher.Constraint("Perpendicular", 62, 66))
sketch1.addConstraint(Sketcher.Constraint("Horizontal", 25, 3, 31, 3))
sketch1.addConstraint(Sketcher.Constraint("Horizontal", 23, 3, 33, 3))
sketch1.addConstraint(Sketcher.Constraint("Horizontal", 17, 3, 39, 3))
sketch1.addConstraint(Sketcher.Constraint("Horizontal", 15, 3, 41, 3))
sketch1.addConstraint(Sketcher.Constraint("Horizontal", 11, 3, 45, 3))
sketch1.addConstraint(Sketcher.Constraint("Horizontal", 9, 3, 47, 3))
sketch1.addConstraint(Sketcher.Constraint("Horizontal", 7, 3, 49, 3))
sketch1.addConstraint(Sketcher.Constraint("Horizontal", 3, 3, 53, 3))
sketch1.addConstraint(Sketcher.Constraint("Horizontal", 1, 3, 55, 3))
sketch1.addConstraint(Sketcher.Constraint("Horizontal", 61, 3, 67, 3))
sketch1.addConstraint(Sketcher.Constraint("Horizontal", 26, 2, 29, 1))
sketch1.addConstraint(Sketcher.Constraint("Vertical", 7, 3, 13, 3))
sketch1.addConstraint(Sketcher.Constraint("Vertical", 5, 3, 15, 3))
sketch1.addConstraint(Sketcher.Constraint("Vertical", 41, 3, 51, 3))
sketch1.addConstraint(Sketcher.Constraint("Vertical", 35, 3, 57, 3))
sketch1.addConstraint(Sketcher.Constraint("Vertical", 33, 3, 59, 3))
sketch1.addConstraint(Sketcher.Constraint("Vertical", 29, 3, 63, 3))
sketch1.addConstraint(Sketcher.Constraint("Vertical", 27, 3, 65, 3))
sketch1.addConstraint(Sketcher.Constraint("Vertical", 21, 3, 71, 3))
sketch1.addConstraint(Sketcher.Constraint("Equal", 22, 34))
sketch1.addConstraint(Sketcher.Constraint("Equal", 20, 36))
sketch1.addConstraint(Sketcher.Constraint("Equal", 14, 42))
sketch1.addConstraint(Sketcher.Constraint("Equal", 56, 2))
sketch1.addConstraint(Sketcher.Constraint("Equal", 70, 4))
sketch1.addConstraint(Sketcher.Constraint("Equal", 64, 10))
sketch1.addConstraint(Sketcher.Constraint("Equal", 4, 16))
sketch1.addConstraint(Sketcher.Constraint("Equal", 2, 18))
sketch1.addConstraint(Sketcher.Constraint("Equal", 50, 24))
sketch1.addConstraint(Sketcher.Constraint("Equal", 32, 60))
sketch1.addConstraint(Sketcher.Constraint("Equal", 12, 26))
sketch1.addConstraint(Sketcher.Constraint("Diameter", 72, 5.0))
sketch1.addConstraint(Sketcher.Constraint("Radius", 1, 2.0))
sketch1.addConstraint(Sketcher.Constraint("Radius", 9, 3.0))
sketch1.addConstraint(Sketcher.Constraint("Radius", 3, 0.9))
sketch1.addConstraint(Sketcher.Constraint("Radius", 5, 0.5))
sketch1.addConstraint(Sketcher.Constraint("DistanceX", 0, 2, 0, 1, 4.9))
sketch1.addConstraint(Sketcher.Constraint("DistanceX", 28, 1, 28, 2, 3.900958))
sketch1.addConstraint(Sketcher.Constraint("DistanceY", 12, 2, -1, 1, 26.320501))
sketch1.addConstraint(Sketcher.Constraint("DistanceX", 6, 1, 6, 2, 0.404927))
sketch1.addConstraint(Sketcher.Constraint("DistanceX", 22, 2, 22, 1, 2.781086))
sketch1.addConstraint(Sketcher.Constraint("DistanceY", 1, 3, -1, 1, 12.085862))
sketch1.addConstraint(Sketcher.Constraint("DistanceX", -1, 1, 23, 3, 1.076162))
sketch1.addConstraint(Sketcher.Constraint("DistanceY", 72, 3, -1, 1, 20.085862))
sketch1.addConstraint(Sketcher.Constraint("DistanceX", -1, 1, 72, 3, 6.957248))
pad1 = doc.addObject("PartDesign::Pad", "Pad")
body.addObject(pad1)
pad1.Profile = sketch1
pad1.Length = 430

doc.recompute()
